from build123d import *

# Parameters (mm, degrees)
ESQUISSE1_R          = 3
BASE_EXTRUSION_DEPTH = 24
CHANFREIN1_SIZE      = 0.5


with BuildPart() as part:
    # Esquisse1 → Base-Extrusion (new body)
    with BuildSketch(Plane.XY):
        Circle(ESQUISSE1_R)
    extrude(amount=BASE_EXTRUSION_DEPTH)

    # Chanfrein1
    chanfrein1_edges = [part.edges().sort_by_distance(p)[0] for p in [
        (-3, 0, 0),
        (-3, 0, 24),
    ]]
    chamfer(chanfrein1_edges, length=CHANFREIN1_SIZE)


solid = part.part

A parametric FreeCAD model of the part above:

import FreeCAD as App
import Part
import Sketcher
from FreeCAD import Vector
Q = App.Units.Quantity


def edges_at(feature, points):
    """Names of the edges that pass closest to the given points."""
    edges = feature.Shape.Edges
    near = lambda p: min(range(len(edges)), key=lambda i: edges[i].distToShape(Part.Vertex(*p))[0])
    return sorted({f"Edge{near(p) + 1}" for p in points})

doc = App.newDocument("Part")
body = doc.addObject("PartDesign::Body", "Body")

# Sketch on XY plane
sketch1 = doc.addObject("Sketcher::SketchObject", "Sketch")
body.addObject(sketch1)
sketch1.AttachmentSupport = (doc.XY_Plane, [""])
sketch1.MapMode = "FlatFace"
sketch1.addGeometry(Part.Circle(Vector(0, 0, 0), Vector(0, 0, 1), 3), False)
sketch1.addConstraint([
    Sketcher.Constraint("Coincident", 0, 3, -1, 1),
    Sketcher.Constraint("Diameter", 0, Q("6 mm")),
])
pad1 = doc.addObject("PartDesign::Pad", "Pad")
body.addObject(pad1)
pad1.Profile = sketch1
pad1.Length = 24
doc.recompute()

chamfer = doc.addObject("PartDesign::Chamfer", "Chamfer")
body.addObject(chamfer)
chamfer.Base = (pad1, edges_at(pad1, [(-3, 0, 0), (-3, 0, 24)]))
chamfer.Size = 0.5

doc.recompute()
